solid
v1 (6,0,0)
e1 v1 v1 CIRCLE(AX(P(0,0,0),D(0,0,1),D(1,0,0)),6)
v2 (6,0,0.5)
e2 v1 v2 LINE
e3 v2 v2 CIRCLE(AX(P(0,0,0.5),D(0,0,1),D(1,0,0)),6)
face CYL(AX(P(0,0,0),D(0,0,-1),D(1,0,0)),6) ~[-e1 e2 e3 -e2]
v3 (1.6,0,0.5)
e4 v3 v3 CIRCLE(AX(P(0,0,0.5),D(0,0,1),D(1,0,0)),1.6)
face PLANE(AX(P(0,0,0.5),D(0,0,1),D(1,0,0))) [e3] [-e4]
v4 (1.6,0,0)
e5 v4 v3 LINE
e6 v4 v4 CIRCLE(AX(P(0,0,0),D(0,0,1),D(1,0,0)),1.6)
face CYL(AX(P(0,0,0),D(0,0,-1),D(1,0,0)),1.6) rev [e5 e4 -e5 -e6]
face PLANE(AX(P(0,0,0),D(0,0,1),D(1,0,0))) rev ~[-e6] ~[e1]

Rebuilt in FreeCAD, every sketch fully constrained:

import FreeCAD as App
import Part
import Sketcher
from FreeCAD import Vector

doc = App.newDocument("Part")
body = doc.addObject("PartDesign::Body", "Body")

# Sketch on XY plane
sketch1 = body.newObject("Sketcher::SketchObject", "Sketch")
sketch1.AttachmentSupport = (doc.getObject("XY_Plane"), [""])
sketch1.MapMode = "FlatFace"
sketch1.addGeometry([
    Part.Circle(Vector(0, 0, 0), Vector(0, 0, 1), 6),
    Part.Circle(Vector(0, 0, 0), Vector(0, 0, 1), 1.6),
], False)
sketch1.addConstraint([
    Sketcher.Constraint("Coincident", 0, 3, -1, 1),
    Sketcher.Constraint("Coincident", 1, 3, -1, 1),
    Sketcher.Constraint("Diameter", 0, 12.0),
    Sketcher.Constraint("Diameter", 1, 3.2),
])
pad1 = body.newObject("PartDesign::Pad", "Pad")
pad1.Profile = sketch1
pad1.Length = 0.5

doc.recompute()
